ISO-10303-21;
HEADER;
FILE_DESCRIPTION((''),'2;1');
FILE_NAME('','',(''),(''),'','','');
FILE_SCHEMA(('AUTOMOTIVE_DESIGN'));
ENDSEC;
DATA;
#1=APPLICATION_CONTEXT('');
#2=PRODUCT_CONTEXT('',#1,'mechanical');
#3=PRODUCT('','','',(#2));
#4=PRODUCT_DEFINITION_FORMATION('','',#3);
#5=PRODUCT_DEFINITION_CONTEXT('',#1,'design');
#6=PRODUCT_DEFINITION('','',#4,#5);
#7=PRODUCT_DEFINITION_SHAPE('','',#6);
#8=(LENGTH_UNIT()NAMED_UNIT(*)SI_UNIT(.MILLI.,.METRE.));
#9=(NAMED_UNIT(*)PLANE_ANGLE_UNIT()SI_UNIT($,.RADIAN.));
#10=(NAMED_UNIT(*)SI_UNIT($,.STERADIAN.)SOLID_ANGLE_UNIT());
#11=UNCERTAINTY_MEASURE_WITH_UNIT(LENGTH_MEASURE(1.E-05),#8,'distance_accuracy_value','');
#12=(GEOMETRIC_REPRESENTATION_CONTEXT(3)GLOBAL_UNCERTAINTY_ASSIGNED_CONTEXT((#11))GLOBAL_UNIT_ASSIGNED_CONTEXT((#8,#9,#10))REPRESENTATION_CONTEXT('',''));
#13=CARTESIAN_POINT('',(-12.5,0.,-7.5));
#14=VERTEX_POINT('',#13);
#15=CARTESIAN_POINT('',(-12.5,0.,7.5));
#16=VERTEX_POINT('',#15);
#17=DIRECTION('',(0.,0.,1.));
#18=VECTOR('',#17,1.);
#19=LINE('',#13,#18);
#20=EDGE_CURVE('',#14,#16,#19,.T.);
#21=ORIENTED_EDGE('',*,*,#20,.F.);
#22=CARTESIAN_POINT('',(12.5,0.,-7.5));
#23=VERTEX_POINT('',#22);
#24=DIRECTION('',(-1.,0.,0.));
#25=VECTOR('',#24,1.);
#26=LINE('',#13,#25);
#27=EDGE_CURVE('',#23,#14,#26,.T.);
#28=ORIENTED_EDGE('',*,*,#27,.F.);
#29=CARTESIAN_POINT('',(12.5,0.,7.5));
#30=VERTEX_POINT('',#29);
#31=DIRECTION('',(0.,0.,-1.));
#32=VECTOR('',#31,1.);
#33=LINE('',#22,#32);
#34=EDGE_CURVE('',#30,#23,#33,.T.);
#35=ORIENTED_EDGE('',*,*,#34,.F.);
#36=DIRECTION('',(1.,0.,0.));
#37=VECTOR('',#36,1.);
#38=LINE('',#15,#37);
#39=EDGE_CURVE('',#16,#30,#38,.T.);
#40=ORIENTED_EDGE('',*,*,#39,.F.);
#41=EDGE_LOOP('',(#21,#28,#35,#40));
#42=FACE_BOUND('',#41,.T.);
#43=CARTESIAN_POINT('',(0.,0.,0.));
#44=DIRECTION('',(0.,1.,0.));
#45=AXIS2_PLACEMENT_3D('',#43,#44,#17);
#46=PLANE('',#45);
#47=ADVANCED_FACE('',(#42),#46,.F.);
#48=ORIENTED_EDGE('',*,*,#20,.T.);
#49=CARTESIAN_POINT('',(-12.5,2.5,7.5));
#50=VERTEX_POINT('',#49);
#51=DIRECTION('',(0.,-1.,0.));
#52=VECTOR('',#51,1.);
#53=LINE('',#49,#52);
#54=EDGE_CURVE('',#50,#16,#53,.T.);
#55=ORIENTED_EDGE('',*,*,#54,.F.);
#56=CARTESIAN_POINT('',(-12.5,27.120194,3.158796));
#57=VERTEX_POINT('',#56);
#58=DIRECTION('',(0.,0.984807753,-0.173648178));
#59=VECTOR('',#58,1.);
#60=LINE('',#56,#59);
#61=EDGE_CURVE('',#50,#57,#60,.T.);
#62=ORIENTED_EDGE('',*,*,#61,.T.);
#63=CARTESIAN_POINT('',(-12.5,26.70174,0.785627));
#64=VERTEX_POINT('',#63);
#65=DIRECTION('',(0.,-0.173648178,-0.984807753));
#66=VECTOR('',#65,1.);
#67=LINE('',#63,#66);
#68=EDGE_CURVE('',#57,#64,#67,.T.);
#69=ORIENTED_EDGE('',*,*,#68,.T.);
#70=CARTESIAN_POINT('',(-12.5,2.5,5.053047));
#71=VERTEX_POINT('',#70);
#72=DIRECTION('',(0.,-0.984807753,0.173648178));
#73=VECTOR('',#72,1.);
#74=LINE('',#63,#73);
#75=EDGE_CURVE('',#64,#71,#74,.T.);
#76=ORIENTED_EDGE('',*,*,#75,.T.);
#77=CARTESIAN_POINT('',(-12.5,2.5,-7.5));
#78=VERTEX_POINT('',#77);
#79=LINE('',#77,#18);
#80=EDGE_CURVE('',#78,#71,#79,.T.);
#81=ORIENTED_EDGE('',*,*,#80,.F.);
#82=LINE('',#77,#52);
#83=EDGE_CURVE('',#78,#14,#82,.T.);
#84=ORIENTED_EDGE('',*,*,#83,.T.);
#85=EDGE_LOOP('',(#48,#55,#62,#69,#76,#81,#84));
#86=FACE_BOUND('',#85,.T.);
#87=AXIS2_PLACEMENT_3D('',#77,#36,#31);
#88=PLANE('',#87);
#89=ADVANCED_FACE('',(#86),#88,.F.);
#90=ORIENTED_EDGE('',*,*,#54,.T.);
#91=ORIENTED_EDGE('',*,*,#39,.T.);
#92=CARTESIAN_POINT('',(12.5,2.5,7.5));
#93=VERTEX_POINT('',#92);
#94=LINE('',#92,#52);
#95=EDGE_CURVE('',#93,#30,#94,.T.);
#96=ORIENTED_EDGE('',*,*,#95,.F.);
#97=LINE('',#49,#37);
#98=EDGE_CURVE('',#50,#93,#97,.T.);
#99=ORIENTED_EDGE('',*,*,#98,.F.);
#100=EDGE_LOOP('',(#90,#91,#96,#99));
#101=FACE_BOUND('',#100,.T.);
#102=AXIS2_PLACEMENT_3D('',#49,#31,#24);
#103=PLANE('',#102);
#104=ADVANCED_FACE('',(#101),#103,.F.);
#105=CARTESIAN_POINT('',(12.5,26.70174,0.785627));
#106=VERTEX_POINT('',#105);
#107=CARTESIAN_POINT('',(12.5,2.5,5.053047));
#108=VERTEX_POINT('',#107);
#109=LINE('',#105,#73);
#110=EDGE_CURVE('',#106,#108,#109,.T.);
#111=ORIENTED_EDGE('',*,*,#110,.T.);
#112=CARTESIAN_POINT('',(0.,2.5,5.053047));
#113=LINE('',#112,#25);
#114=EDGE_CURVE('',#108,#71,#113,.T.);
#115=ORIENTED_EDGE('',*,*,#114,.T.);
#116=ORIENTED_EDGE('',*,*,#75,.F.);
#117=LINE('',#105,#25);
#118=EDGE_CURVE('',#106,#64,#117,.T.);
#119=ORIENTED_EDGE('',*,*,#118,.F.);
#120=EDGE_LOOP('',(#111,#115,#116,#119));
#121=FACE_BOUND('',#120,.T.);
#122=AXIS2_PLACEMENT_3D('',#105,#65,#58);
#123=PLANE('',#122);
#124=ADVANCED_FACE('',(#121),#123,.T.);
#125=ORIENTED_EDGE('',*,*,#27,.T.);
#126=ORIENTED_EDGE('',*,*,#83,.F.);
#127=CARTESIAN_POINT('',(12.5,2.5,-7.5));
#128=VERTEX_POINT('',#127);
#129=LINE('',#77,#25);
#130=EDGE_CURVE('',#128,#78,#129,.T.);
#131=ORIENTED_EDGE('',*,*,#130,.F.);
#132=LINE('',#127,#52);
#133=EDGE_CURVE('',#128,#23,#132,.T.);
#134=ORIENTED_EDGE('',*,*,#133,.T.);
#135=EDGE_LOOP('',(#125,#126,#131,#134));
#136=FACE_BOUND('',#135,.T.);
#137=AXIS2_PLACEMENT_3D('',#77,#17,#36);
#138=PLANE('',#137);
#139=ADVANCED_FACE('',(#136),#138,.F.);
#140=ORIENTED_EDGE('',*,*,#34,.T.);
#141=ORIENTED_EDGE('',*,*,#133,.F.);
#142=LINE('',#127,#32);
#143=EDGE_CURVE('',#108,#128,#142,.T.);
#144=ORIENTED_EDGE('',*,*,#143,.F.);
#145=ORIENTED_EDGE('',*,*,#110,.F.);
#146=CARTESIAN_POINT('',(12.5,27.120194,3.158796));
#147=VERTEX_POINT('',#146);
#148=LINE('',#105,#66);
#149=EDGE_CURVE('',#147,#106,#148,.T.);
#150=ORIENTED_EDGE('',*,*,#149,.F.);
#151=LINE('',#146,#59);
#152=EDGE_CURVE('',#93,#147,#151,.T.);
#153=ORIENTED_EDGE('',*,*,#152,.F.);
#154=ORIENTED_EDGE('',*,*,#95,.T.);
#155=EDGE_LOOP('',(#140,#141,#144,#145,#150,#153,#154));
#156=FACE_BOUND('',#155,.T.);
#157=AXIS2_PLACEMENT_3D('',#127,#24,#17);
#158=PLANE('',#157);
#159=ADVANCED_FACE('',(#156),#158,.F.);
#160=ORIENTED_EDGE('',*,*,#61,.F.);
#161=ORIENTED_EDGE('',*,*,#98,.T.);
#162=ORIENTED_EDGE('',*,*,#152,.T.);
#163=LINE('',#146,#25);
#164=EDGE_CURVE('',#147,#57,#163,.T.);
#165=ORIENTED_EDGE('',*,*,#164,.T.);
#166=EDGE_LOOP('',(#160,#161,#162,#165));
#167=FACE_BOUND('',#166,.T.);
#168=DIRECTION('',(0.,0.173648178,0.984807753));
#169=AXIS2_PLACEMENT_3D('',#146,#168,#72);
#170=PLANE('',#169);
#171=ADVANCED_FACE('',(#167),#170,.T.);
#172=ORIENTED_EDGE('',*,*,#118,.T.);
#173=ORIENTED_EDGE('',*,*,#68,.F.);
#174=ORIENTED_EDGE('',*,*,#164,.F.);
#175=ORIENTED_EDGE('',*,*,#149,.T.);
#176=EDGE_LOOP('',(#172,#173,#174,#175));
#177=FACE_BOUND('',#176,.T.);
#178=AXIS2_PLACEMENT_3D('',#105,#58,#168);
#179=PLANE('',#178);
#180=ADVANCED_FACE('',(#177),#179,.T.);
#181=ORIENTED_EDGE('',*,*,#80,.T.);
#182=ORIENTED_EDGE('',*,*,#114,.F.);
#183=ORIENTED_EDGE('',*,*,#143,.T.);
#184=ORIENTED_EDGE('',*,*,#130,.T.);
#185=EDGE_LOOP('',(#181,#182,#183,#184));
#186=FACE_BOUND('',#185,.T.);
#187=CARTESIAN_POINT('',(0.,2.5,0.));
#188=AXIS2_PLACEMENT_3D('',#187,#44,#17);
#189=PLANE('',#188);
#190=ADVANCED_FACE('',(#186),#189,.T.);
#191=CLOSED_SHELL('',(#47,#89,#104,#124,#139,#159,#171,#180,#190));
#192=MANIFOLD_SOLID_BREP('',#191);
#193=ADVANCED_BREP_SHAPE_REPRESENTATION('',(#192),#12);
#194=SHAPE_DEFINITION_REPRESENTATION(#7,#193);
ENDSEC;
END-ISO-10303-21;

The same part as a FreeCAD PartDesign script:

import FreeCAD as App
import Part
import Sketcher
from FreeCAD import Vector
Q = App.Units.Quantity


def add_polygon(sketch, points):
    """Adds a closed chain of lines whose ends are joined by coincident constraints."""
    first, n = sketch.GeometryCount, len(points)
    for a, b in zip(points, points[1:] + points[:1]):
        sketch.addGeometry(Part.LineSegment(App.Vector(*a, 0), App.Vector(*b, 0)), False)
    for i in range(n):
        sketch.addConstraint(Sketcher.Constraint("Coincident", first + i, 2, first + (i + 1) % n, 1))

doc = App.newDocument("Part")
body = doc.addObject("PartDesign::Body", "Body")

sketch1 = body.newObject("Sketcher::SketchObject", "Sketch")
sketch1.AttachmentSupport = (doc.getObject("XZ_Plane"), [""])
sketch1.MapMode = "FlatFace"
add_polygon(sketch1, [(-12, -8), (-12, 8), (12, 8), (12, -8)])
sketch1.addConstraint([
    Sketcher.Constraint("Vertical", 0),
    Sketcher.Constraint("Horizontal", 1),
    Sketcher.Constraint("Vertical", 2),
    Sketcher.Constraint("Horizontal", 3),
    Sketcher.Constraint("Symmetric", 0, 2, 2, 2, -1, 1),
    Sketcher.Constraint("DistanceX", 1, 1, 1, 2, 25.0),
    Sketcher.Constraint("DistanceY", 0, 1, 0, 2, 15.0),
])
pad1 = body.newObject("PartDesign::Pad", "Pad")
pad1.Profile = sketch1
pad1.Length = 2.5
pad1.Reversed = True

sketch2 = body.newObject("Sketcher::SketchObject", "Sketch001")
sketch2.AttachmentSupport = (doc.getObject("YZ_Plane"), [""])
sketch2.MapMode = "FlatFace"
sketch2.AttachmentOffset = App.Placement(Vector(0, 0, -12.5), App.Rotation())
add_polygon(sketch2, [(27.1, 3.2), (26.7, 0.8), (2.1, 5.1), (2.5, 7.5)])
sketch2.addConstraint([
    Sketcher.Constraint("Perpendicular", 0, 1),
    Sketcher.Constraint("Perpendicular", 1, 2),
    Sketcher.Constraint("Perpendicular", 2, 3),
    Sketcher.Constraint("Angle", 0, Q("-100 deg")),
    Sketcher.Constraint("Distance", 1, 25.0),
    Sketcher.Constraint("DistanceX", -1, 1, 2, 2, 2.5),
    Sketcher.Constraint("DistanceY", -1, 1, 2, 2, 7.5),
    Sketcher.Constraint("Distance", 0, 2.409779),
])
pad2 = body.newObject("PartDesign::Pad", "Pad001")
pad2.Profile = sketch2
pad2.Length = 25

doc.recompute()
